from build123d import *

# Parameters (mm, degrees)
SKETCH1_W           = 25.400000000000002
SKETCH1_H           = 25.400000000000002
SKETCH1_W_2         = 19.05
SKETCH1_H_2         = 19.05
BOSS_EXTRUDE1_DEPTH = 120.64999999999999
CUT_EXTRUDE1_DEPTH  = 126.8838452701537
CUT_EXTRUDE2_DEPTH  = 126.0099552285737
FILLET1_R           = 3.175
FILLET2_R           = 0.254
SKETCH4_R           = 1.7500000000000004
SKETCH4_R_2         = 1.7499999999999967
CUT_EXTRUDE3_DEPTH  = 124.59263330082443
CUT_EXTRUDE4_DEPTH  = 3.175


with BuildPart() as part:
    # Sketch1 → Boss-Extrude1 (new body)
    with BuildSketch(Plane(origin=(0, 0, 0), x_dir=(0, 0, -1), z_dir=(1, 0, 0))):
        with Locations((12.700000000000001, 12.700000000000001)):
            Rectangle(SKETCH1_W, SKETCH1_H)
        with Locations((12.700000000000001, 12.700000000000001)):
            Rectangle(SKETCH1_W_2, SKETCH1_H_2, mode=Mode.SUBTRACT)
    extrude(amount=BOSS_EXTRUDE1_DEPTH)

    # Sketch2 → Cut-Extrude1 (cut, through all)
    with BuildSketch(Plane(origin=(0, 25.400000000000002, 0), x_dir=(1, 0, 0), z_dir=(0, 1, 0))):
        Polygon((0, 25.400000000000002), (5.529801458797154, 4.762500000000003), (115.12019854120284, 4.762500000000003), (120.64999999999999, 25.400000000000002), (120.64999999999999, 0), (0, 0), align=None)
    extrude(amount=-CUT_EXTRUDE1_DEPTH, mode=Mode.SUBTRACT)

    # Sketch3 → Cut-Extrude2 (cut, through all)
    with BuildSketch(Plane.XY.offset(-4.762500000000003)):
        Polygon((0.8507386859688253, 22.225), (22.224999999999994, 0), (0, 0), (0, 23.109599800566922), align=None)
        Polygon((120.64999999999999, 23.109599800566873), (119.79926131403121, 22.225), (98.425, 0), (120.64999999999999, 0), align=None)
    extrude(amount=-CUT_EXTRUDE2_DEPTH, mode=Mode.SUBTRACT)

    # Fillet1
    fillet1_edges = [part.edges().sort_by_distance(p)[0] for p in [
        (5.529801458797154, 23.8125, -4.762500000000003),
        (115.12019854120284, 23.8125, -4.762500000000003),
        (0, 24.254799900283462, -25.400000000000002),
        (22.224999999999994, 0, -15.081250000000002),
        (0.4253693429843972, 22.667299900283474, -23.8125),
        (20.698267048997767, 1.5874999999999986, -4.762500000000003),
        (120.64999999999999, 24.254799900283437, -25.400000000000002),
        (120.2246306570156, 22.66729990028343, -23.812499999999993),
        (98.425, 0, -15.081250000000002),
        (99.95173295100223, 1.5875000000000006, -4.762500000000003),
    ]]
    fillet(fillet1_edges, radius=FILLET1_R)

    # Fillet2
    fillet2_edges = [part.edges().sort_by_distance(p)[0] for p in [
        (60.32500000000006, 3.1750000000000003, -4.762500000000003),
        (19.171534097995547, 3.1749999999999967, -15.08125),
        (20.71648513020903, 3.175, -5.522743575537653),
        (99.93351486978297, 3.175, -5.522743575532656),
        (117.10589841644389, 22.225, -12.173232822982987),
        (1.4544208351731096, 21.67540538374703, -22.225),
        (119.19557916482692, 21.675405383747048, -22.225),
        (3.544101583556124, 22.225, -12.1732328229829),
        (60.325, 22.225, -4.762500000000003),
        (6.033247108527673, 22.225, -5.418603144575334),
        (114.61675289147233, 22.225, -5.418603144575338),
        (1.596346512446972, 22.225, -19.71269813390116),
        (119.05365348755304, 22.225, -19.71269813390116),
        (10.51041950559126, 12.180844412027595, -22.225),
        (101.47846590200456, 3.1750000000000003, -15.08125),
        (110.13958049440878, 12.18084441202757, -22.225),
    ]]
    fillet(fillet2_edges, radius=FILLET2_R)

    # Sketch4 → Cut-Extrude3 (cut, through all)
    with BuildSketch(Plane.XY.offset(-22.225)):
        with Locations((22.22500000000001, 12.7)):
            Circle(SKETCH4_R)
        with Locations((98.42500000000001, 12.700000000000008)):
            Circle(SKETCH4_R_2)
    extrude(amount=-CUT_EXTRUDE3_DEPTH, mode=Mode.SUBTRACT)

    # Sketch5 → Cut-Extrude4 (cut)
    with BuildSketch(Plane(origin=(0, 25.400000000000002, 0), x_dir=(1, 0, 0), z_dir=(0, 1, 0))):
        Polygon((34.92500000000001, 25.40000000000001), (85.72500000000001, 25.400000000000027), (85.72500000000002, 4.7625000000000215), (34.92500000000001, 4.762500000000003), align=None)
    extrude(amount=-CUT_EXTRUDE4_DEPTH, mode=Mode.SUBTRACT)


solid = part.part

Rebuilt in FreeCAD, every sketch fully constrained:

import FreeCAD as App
import Part
import Sketcher
from FreeCAD import Vector
Q = App.Units.Quantity


def edges_at(feature, points):
    """Names of the edges that pass closest to the given points."""
    edges = feature.Shape.Edges
    near = lambda p: min(range(len(edges)), key=lambda i: edges[i].distToShape(Part.Vertex(*p))[0])
    return sorted({f"Edge{near(p) + 1}" for p in points})


def add_polygon(sketch, points):
    """Adds a closed chain of lines whose ends are joined by coincident constraints."""
    first, n = sketch.GeometryCount, len(points)
    for a, b in zip(points, points[1:] + points[:1]):
        sketch.addGeometry(Part.LineSegment(App.Vector(*a, 0), App.Vector(*b, 0)), False)
    for i in range(n):
        sketch.addConstraint(Sketcher.Constraint("Coincident", first + i, 2, first + (i + 1) % n, 1))

doc = App.newDocument("Part")
body = doc.addObject("PartDesign::Body", "Body")

sketch1 = body.newObject("Sketcher::SketchObject", "Sketch")
sketch1.AttachmentSupport = (doc.getObject("YZ_Plane"), [""])
sketch1.MapMode = "FlatFace"
add_polygon(sketch1, [(25, 0), (0, 0), (0, -25), (25, -25)])
add_polygon(sketch1, [(3, -22), (3, -3), (22, -3), (22, -22)])
sketch1.addConstraint([
    Sketcher.Constraint("Horizontal", 0),
    Sketcher.Constraint("Vertical", 1),
    Sketcher.Constraint("Horizontal", 2),
    Sketcher.Constraint("Vertical", 3),
    Sketcher.Constraint("Vertical", 4),
    Sketcher.Constraint("Horizontal", 5),
    Sketcher.Constraint("Vertical", 6),
    Sketcher.Constraint("Horizontal", 7),
    Sketcher.Constraint("Coincident", 0, 2, -1, 1),
    Sketcher.Constraint("Equal", 2, 1),
    Sketcher.Constraint("Equal", 7, 4),
    Sketcher.Constraint("DistanceX", 0, 2, 0, 1, Q("1 in")),
    Sketcher.Constraint("DistanceX", 5, 1, 5, 2, Q("0.75 in")),
    Sketcher.Constraint("DistanceX", -1, 1, 4, 2, Q("0.125 in")),
    Sketcher.Constraint("DistanceY", 4, 2, -1, 1, Q("0.125 in")),
])
pad1 = body.newObject("PartDesign::Pad", "Pad")
pad1.Profile = sketch1
pad1.Length = Q("4.75 in")

sketch2 = body.newObject("Sketcher::SketchObject", "Sketch001")
sketch2.AttachmentSupport = (doc.getObject("XZ_Plane"), [""])
sketch2.MapMode = "FlatFace"
sketch2.AttachmentOffset = App.Placement(Vector(0, 0, -1 * 25.4), App.Rotation())
add_polygon(sketch2, [(6, -5), (0, -25), (0, 0), (121, 0), (121, -25), (115, -5)])
sketch2.addConstraint([
    Sketcher.Constraint("Vertical", 1),
    Sketcher.Constraint("Horizontal", 2),
    Sketcher.Constraint("Vertical", 3),
    Sketcher.Constraint("Horizontal", 5),
    Sketcher.Constraint("Coincident", 1, 2, -1, 1),
    Sketcher.Constraint("Horizontal", 0, 2, 3, 2),
    Sketcher.Constraint("Equal", 0, 4),
    Sketcher.Constraint("DistanceY", 1, 1, 1, 2, Q("1 in")),
    Sketcher.Constraint("Angle", 0, Q("-105 deg")),
    Sketcher.Constraint("DistanceX", 2, 1, 2, 2, Q("4.75 in")),
    Sketcher.Constraint("DistanceY", 4, 2, -1, 1, Q("0.1875 in")),
])
pocket1 = body.newObject("PartDesign::Pocket", "Pocket")
pocket1.Profile = sketch2
pocket1.Type = "ThroughAll"
pocket1.Reversed = True

sketch3 = body.newObject("Sketcher::SketchObject", "Sketch002")
sketch3.AttachmentSupport = (doc.getObject("XY_Plane"), [""])
sketch3.MapMode = "FlatFace"
sketch3.AttachmentOffset = App.Placement(Vector(0, 0, -0.1875 * 25.4), App.Rotation())
add_polygon(sketch3, [(22, 0), (0, 23), (0, 0)])
add_polygon(sketch3, [(121, 23), (98, 0), (121, 0)])
sketch3.addConstraint([
    Sketcher.Constraint("Vertical", 1),
    Sketcher.Constraint("Horizontal", 2),
    Sketcher.Constraint("Horizontal", 4),
    Sketcher.Constraint("Vertical", 5),
    Sketcher.Constraint("Coincident", 1, 2, -1, 1),
    Sketcher.Constraint("PointOnObject", 3, 2, -1),
    Sketcher.Constraint("Horizontal", 0, 2, 5, 2),
    Sketcher.Constraint("Equal", 2, 4),
    Sketcher.Constraint("DistanceX", 2, 2, 3, 2, Q("3 in")),
    Sketcher.Constraint("DistanceX", 2, 1, 2, 2, Q("0.875 in")),
    Sketcher.Constraint("DistanceY", 1, 2, 1, 1, Q("23.1096 mm")),
])
pocket2 = body.newObject("PartDesign::Pocket", "Pocket001")
pocket2.Profile = sketch3
pocket2.Type = "ThroughAll"
doc.recompute()

fillet = body.newObject("PartDesign::Fillet", "Fillet")
fillet.Base = (pocket2, edges_at(pocket2, [
    (5.53, 23.812, -4.763),
    (115.12, 23.812, -4.763),
    (0, 24.255, -25.4),
    (22.225, 0, -15.081),
    (0.425, 22.667, -23.812),
    (20.698, 1.587, -4.763),
    (120.65, 24.255, -25.4),
    (120.225, 22.667, -23.812),
    (98.425, 0, -15.081),
    (99.952, 1.587, -4.763),
]))
fillet.Radius = Q("0.125 in")
doc.recompute()

fillet2 = body.newObject("PartDesign::Fillet", "Fillet001")
fillet2.Base = (fillet, edges_at(fillet, [
    (60.325, 3.175, -4.763),
    (19.172, 3.175, -15.081),
    (20.716, 3.175, -5.523),
    (99.934, 3.175, -5.523),
    (117.106, 22.225, -12.173),
    (1.454, 21.675, -22.225),
    (119.196, 21.675, -22.225),
    (3.544, 22.225, -12.173),
    (60.325, 22.225, -4.763),
    (6.033, 22.225, -5.419),
    (114.617, 22.225, -5.419),
    (1.596, 22.225, -19.713),
    (119.054, 22.225, -19.713),
    (10.51, 12.181, -22.225),
    (101.478, 3.175, -15.081),
    (110.14, 12.181, -22.225),
]))
fillet2.Radius = Q("0.01 in")

sketch4 = body.newObject("Sketcher::SketchObject", "Sketch003")
sketch4.AttachmentSupport = (doc.getObject("XY_Plane"), [""])
sketch4.MapMode = "FlatFace"
sketch4.AttachmentOffset = App.Placement(Vector(0, 0, -0.875 * 25.4), App.Rotation())
sketch4.addGeometry([
    Part.Circle(Vector(22.2, 12.7, 0), Vector(0, 0, 1), 1.8),
    Part.Circle(Vector(98.4, 12.7, 0), Vector(0, 0, 1), 1.8),
], False)
sketch4.addConstraint([
    Sketcher.Constraint("Equal", 0, 1),
    Sketcher.Constraint("Horizontal", 0, 3, 1, 3),
    Sketcher.Constraint("DistanceX", 0, 3, 1, 3, Q("3 in")),
    Sketcher.Constraint("DistanceY", -1, 1, 0, 3, Q("0.5 in")),
    Sketcher.Constraint("Diameter", 0, Q("3.5 mm")),
    Sketcher.Constraint("DistanceX", -1, 1, 0, 3, Q("0.875 in")),
])
pocket3 = body.newObject("PartDesign::Pocket", "Pocket002")
pocket3.Profile = sketch4
pocket3.Type = "ThroughAll"

sketch5 = body.newObject("Sketcher::SketchObject", "Sketch004")
sketch5.AttachmentSupport = (doc.getObject("XZ_Plane"), [""])
sketch5.MapMode = "FlatFace"
sketch5.AttachmentOffset = App.Placement(Vector(0, 0, -1 * 25.4), App.Rotation())
add_polygon(sketch5, [(86, -25), (35, -25), (35, -5), (86, -5)])
sketch5.addConstraint([
    Sketcher.Constraint("Horizontal", 0),
    Sketcher.Constraint("Vertical", 1),
    Sketcher.Constraint("Horizontal", 2),
    Sketcher.Constraint("Vertical", 3),
    Sketcher.Constraint("DistanceX", 0, 2, 0, 1, Q("2 in")),
    Sketcher.Constraint("DistanceY", 0, 2, -1, 1, Q("1 in")),
    Sketcher.Constraint("DistanceY", 1, 1, 1, 2, Q("0.8125 in")),
    Sketcher.Constraint("DistanceX", -1, 1, 0, 2, Q("1.375 in")),
])
pocket4 = body.newObject("PartDesign::Pocket", "Pocket003")
pocket4.Profile = sketch5
pocket4.Length = Q("0.125 in")
pocket4.Reversed = True

doc.recompute()
